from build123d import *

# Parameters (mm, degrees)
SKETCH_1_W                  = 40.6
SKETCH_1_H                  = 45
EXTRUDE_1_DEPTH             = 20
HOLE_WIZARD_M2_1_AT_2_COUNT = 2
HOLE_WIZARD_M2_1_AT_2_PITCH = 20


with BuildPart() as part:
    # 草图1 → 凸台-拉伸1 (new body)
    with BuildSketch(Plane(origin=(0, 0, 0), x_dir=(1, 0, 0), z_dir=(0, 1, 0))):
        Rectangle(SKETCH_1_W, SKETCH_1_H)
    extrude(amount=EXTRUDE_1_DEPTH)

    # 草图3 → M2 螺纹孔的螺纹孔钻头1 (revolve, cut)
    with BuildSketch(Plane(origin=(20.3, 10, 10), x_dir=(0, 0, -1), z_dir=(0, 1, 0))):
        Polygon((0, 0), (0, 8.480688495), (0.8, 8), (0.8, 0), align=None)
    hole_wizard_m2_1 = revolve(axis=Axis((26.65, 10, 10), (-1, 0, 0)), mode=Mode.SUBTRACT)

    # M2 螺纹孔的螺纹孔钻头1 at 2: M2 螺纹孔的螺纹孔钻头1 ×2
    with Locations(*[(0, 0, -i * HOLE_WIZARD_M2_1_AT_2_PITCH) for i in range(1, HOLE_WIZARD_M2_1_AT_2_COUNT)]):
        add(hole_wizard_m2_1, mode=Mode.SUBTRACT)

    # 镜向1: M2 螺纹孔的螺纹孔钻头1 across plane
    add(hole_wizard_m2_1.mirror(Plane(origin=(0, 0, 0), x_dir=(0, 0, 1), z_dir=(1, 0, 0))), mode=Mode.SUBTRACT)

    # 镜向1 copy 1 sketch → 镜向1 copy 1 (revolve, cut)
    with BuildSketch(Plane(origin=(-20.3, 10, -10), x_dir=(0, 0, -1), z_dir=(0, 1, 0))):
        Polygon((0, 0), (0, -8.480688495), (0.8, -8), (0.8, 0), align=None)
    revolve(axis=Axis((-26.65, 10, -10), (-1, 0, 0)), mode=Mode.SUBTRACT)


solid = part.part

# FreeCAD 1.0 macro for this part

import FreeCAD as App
import Part
import Sketcher
Q = App.Units.Quantity

doc = App.newDocument("Part")
body = doc.addObject("PartDesign::Body", "Body")

sketch1 = doc.addObject("Sketcher::SketchObject", "Sketch")
body.addObject(sketch1)
sketch1.AttachmentSupport = (doc.XZ_Plane, [""])
sketch1.MapMode = "FlatFace"
sketch1.addGeometry([
    Part.LineSegment(App.Vector(-20.3, -22.5, 0), App.Vector(-20.3, 22.5, 0)),
    Part.LineSegment(App.Vector(-20.3, 22.5, 0), App.Vector(20.3, 22.5, 0)),
    Part.LineSegment(App.Vector(20.3, 22.5, 0), App.Vector(20.3, -22.5, 0)),
    Part.LineSegment(App.Vector(20.3, -22.5, 0), App.Vector(-20.3, -22.5, 0)),
], False)
sketch1.addConstraint([
    Sketcher.Constraint("Coincident", 0, 2, 1, 1),
    Sketcher.Constraint("Coincident", 1, 2, 2, 1),
    Sketcher.Constraint("Coincident", 2, 2, 3, 1),
    Sketcher.Constraint("Coincident", 3, 2, 0, 1),
    Sketcher.Constraint("Vertical", 0),
    Sketcher.Constraint("Horizontal", 1),
    Sketcher.Constraint("Vertical", 2),
    Sketcher.Constraint("Horizontal", 3),
    Sketcher.Constraint("Symmetric", 0, 2, 2, 2, -1, 1),
    Sketcher.Constraint("DistanceY", 0, 1, 0, 2, Q("45 mm")),
    Sketcher.Constraint("DistanceX", 1, 1, 1, 2, Q("40.6 mm")),
])
pad1 = doc.addObject("PartDesign::Pad", "Pad")
body.addObject(pad1)
pad1.Profile = sketch1
pad1.Length = 20
pad1.Reversed = True

sketch2 = doc.addObject("Sketcher::SketchObject", "Sketch001")
body.addObject(sketch2)
sketch2.AttachmentSupport = (doc.XZ_Plane, [""])
sketch2.MapMode = "FlatFace"
sketch2.AttachmentOffset = App.Placement(App.Vector(0, 0, -10), App.Rotation())
sketch2.addGeometry([
    Part.LineSegment(App.Vector(11.819312, 10, 0), App.Vector(20.3, 10, 0)),
    Part.LineSegment(App.Vector(20.3, 10, 0), App.Vector(20.3, 9.2, 0)),
    Part.LineSegment(App.Vector(20.3, 9.2, 0), App.Vector(12.3, 9.2, 0)),
    Part.LineSegment(App.Vector(12.3, 9.2, 0), App.Vector(11.819312, 10, 0)),
], False)
sketch2.addGeometry(Part.LineSegment(App.Vector(20.3, 10, 0), App.Vector(11.819312, 10, 0)), True)
sketch2.addConstraint([
    Sketcher.Constraint("Coincident", 0, 2, 1, 1),
    Sketcher.Constraint("Coincident", 1, 2, 2, 1),
    Sketcher.Constraint("Coincident", 2, 2, 3, 1),
    Sketcher.Constraint("Coincident", 3, 2, 0, 1),
    Sketcher.Constraint("Horizontal", 0),
    Sketcher.Constraint("Vertical", 1),
    Sketcher.Constraint("Horizontal", 2),
    Sketcher.Constraint("Horizontal", 4),
    Sketcher.Constraint("Coincident", 4, 1, 0, 2),
    Sketcher.Constraint("Equal", 0, 4),
    Sketcher.Constraint("DistanceX", 2, 2, 2, 1, Q("8 mm")),
    Sketcher.Constraint("Angle", 3, Q("121 deg")),
    Sketcher.Constraint("DistanceY", 1, 2, 1, 1, Q("0.8 mm")),
    Sketcher.Constraint("DistanceY", -1, 1, 0, 2, Q("10 mm")),
    Sketcher.Constraint("DistanceX", -1, 1, 0, 2, Q("20.3 mm")),
])
groove = doc.addObject("PartDesign::Groove", "Groove")
body.addObject(groove)
groove.Profile = sketch2
groove.ReferenceAxis = (sketch2, ["Axis0"])
groove.Angle = 360
doc.recompute()

linearpattern = doc.addObject("PartDesign::LinearPattern", "LinearPattern")
body.addObject(linearpattern)
linearpattern.Originals = [groove]
linearpattern.Direction = (doc.Z_Axis, [""])
linearpattern.Mode = "offset"
linearpattern.Offset = 20
linearpattern.Occurrences = 2
linearpattern.Reversed = True
body.Tip = linearpattern
doc.recompute()

mirrored = doc.addObject("PartDesign::Mirrored", "Mirrored")
body.addObject(mirrored)
mirrored.Originals = [groove]
mirrored.MirrorPlane = (doc.YZ_Plane, [""])
body.Tip = mirrored

sketch3 = doc.addObject("Sketcher::SketchObject", "Sketch002")
body.addObject(sketch3)
sketch3.AttachmentSupport = (doc.XZ_Plane, [""])
sketch3.MapMode = "FlatFace"
sketch3.AttachmentOffset = App.Placement(App.Vector(0, 0, -10), App.Rotation())
sketch3.addGeometry([
    Part.LineSegment(App.Vector(-20.3, -10, 0), App.Vector(-11.819312, -10, 0)),
    Part.LineSegment(App.Vector(-11.819312, -10, 0), App.Vector(-12.3, -10.8, 0)),
    Part.LineSegment(App.Vector(-12.3, -10.8, 0), App.Vector(-20.3, -10.8, 0)),
    Part.LineSegment(App.Vector(-20.3, -10.8, 0), App.Vector(-20.3, -10, 0)),
], False)
sketch3.addGeometry(Part.LineSegment(App.Vector(-11.819312, -10, 0), App.Vector(-20.3, -10, 0)), True)
sketch3.addConstraint([
    Sketcher.Constraint("Coincident", 0, 2, 1, 1),
    Sketcher.Constraint("Coincident", 1, 2, 2, 1),
    Sketcher.Constraint("Coincident", 2, 2, 3, 1),
    Sketcher.Constraint("Coincident", 3, 2, 0, 1),
    Sketcher.Constraint("Horizontal", 0),
    Sketcher.Constraint("Horizontal", 2),
    Sketcher.Constraint("Vertical", 3),
    Sketcher.Constraint("Horizontal", 4),
    Sketcher.Constraint("Coincident", 4, 1, 0, 2),
    Sketcher.Constraint("Vertical", 2, 2, 4, 2),
    Sketcher.Constraint("DistanceX", 2, 2, 2, 1, Q("8 mm")),
    Sketcher.Constraint("Angle", 1, Q("-121 deg")),
    Sketcher.Constraint("DistanceY", 3, 1, 3, 2, Q("0.8 mm")),
    Sketcher.Constraint("DistanceY", 0, 2, -1, 1, Q("10 mm")),
    Sketcher.Constraint("DistanceX", 1, 2, -1, 1, Q("12.3 mm")),
])
groove2 = doc.addObject("PartDesign::Groove", "Groove001")
body.addObject(groove2)
groove2.Profile = sketch3
groove2.ReferenceAxis = (sketch3, ["Axis0"])
groove2.Angle = 360

doc.recompute()
